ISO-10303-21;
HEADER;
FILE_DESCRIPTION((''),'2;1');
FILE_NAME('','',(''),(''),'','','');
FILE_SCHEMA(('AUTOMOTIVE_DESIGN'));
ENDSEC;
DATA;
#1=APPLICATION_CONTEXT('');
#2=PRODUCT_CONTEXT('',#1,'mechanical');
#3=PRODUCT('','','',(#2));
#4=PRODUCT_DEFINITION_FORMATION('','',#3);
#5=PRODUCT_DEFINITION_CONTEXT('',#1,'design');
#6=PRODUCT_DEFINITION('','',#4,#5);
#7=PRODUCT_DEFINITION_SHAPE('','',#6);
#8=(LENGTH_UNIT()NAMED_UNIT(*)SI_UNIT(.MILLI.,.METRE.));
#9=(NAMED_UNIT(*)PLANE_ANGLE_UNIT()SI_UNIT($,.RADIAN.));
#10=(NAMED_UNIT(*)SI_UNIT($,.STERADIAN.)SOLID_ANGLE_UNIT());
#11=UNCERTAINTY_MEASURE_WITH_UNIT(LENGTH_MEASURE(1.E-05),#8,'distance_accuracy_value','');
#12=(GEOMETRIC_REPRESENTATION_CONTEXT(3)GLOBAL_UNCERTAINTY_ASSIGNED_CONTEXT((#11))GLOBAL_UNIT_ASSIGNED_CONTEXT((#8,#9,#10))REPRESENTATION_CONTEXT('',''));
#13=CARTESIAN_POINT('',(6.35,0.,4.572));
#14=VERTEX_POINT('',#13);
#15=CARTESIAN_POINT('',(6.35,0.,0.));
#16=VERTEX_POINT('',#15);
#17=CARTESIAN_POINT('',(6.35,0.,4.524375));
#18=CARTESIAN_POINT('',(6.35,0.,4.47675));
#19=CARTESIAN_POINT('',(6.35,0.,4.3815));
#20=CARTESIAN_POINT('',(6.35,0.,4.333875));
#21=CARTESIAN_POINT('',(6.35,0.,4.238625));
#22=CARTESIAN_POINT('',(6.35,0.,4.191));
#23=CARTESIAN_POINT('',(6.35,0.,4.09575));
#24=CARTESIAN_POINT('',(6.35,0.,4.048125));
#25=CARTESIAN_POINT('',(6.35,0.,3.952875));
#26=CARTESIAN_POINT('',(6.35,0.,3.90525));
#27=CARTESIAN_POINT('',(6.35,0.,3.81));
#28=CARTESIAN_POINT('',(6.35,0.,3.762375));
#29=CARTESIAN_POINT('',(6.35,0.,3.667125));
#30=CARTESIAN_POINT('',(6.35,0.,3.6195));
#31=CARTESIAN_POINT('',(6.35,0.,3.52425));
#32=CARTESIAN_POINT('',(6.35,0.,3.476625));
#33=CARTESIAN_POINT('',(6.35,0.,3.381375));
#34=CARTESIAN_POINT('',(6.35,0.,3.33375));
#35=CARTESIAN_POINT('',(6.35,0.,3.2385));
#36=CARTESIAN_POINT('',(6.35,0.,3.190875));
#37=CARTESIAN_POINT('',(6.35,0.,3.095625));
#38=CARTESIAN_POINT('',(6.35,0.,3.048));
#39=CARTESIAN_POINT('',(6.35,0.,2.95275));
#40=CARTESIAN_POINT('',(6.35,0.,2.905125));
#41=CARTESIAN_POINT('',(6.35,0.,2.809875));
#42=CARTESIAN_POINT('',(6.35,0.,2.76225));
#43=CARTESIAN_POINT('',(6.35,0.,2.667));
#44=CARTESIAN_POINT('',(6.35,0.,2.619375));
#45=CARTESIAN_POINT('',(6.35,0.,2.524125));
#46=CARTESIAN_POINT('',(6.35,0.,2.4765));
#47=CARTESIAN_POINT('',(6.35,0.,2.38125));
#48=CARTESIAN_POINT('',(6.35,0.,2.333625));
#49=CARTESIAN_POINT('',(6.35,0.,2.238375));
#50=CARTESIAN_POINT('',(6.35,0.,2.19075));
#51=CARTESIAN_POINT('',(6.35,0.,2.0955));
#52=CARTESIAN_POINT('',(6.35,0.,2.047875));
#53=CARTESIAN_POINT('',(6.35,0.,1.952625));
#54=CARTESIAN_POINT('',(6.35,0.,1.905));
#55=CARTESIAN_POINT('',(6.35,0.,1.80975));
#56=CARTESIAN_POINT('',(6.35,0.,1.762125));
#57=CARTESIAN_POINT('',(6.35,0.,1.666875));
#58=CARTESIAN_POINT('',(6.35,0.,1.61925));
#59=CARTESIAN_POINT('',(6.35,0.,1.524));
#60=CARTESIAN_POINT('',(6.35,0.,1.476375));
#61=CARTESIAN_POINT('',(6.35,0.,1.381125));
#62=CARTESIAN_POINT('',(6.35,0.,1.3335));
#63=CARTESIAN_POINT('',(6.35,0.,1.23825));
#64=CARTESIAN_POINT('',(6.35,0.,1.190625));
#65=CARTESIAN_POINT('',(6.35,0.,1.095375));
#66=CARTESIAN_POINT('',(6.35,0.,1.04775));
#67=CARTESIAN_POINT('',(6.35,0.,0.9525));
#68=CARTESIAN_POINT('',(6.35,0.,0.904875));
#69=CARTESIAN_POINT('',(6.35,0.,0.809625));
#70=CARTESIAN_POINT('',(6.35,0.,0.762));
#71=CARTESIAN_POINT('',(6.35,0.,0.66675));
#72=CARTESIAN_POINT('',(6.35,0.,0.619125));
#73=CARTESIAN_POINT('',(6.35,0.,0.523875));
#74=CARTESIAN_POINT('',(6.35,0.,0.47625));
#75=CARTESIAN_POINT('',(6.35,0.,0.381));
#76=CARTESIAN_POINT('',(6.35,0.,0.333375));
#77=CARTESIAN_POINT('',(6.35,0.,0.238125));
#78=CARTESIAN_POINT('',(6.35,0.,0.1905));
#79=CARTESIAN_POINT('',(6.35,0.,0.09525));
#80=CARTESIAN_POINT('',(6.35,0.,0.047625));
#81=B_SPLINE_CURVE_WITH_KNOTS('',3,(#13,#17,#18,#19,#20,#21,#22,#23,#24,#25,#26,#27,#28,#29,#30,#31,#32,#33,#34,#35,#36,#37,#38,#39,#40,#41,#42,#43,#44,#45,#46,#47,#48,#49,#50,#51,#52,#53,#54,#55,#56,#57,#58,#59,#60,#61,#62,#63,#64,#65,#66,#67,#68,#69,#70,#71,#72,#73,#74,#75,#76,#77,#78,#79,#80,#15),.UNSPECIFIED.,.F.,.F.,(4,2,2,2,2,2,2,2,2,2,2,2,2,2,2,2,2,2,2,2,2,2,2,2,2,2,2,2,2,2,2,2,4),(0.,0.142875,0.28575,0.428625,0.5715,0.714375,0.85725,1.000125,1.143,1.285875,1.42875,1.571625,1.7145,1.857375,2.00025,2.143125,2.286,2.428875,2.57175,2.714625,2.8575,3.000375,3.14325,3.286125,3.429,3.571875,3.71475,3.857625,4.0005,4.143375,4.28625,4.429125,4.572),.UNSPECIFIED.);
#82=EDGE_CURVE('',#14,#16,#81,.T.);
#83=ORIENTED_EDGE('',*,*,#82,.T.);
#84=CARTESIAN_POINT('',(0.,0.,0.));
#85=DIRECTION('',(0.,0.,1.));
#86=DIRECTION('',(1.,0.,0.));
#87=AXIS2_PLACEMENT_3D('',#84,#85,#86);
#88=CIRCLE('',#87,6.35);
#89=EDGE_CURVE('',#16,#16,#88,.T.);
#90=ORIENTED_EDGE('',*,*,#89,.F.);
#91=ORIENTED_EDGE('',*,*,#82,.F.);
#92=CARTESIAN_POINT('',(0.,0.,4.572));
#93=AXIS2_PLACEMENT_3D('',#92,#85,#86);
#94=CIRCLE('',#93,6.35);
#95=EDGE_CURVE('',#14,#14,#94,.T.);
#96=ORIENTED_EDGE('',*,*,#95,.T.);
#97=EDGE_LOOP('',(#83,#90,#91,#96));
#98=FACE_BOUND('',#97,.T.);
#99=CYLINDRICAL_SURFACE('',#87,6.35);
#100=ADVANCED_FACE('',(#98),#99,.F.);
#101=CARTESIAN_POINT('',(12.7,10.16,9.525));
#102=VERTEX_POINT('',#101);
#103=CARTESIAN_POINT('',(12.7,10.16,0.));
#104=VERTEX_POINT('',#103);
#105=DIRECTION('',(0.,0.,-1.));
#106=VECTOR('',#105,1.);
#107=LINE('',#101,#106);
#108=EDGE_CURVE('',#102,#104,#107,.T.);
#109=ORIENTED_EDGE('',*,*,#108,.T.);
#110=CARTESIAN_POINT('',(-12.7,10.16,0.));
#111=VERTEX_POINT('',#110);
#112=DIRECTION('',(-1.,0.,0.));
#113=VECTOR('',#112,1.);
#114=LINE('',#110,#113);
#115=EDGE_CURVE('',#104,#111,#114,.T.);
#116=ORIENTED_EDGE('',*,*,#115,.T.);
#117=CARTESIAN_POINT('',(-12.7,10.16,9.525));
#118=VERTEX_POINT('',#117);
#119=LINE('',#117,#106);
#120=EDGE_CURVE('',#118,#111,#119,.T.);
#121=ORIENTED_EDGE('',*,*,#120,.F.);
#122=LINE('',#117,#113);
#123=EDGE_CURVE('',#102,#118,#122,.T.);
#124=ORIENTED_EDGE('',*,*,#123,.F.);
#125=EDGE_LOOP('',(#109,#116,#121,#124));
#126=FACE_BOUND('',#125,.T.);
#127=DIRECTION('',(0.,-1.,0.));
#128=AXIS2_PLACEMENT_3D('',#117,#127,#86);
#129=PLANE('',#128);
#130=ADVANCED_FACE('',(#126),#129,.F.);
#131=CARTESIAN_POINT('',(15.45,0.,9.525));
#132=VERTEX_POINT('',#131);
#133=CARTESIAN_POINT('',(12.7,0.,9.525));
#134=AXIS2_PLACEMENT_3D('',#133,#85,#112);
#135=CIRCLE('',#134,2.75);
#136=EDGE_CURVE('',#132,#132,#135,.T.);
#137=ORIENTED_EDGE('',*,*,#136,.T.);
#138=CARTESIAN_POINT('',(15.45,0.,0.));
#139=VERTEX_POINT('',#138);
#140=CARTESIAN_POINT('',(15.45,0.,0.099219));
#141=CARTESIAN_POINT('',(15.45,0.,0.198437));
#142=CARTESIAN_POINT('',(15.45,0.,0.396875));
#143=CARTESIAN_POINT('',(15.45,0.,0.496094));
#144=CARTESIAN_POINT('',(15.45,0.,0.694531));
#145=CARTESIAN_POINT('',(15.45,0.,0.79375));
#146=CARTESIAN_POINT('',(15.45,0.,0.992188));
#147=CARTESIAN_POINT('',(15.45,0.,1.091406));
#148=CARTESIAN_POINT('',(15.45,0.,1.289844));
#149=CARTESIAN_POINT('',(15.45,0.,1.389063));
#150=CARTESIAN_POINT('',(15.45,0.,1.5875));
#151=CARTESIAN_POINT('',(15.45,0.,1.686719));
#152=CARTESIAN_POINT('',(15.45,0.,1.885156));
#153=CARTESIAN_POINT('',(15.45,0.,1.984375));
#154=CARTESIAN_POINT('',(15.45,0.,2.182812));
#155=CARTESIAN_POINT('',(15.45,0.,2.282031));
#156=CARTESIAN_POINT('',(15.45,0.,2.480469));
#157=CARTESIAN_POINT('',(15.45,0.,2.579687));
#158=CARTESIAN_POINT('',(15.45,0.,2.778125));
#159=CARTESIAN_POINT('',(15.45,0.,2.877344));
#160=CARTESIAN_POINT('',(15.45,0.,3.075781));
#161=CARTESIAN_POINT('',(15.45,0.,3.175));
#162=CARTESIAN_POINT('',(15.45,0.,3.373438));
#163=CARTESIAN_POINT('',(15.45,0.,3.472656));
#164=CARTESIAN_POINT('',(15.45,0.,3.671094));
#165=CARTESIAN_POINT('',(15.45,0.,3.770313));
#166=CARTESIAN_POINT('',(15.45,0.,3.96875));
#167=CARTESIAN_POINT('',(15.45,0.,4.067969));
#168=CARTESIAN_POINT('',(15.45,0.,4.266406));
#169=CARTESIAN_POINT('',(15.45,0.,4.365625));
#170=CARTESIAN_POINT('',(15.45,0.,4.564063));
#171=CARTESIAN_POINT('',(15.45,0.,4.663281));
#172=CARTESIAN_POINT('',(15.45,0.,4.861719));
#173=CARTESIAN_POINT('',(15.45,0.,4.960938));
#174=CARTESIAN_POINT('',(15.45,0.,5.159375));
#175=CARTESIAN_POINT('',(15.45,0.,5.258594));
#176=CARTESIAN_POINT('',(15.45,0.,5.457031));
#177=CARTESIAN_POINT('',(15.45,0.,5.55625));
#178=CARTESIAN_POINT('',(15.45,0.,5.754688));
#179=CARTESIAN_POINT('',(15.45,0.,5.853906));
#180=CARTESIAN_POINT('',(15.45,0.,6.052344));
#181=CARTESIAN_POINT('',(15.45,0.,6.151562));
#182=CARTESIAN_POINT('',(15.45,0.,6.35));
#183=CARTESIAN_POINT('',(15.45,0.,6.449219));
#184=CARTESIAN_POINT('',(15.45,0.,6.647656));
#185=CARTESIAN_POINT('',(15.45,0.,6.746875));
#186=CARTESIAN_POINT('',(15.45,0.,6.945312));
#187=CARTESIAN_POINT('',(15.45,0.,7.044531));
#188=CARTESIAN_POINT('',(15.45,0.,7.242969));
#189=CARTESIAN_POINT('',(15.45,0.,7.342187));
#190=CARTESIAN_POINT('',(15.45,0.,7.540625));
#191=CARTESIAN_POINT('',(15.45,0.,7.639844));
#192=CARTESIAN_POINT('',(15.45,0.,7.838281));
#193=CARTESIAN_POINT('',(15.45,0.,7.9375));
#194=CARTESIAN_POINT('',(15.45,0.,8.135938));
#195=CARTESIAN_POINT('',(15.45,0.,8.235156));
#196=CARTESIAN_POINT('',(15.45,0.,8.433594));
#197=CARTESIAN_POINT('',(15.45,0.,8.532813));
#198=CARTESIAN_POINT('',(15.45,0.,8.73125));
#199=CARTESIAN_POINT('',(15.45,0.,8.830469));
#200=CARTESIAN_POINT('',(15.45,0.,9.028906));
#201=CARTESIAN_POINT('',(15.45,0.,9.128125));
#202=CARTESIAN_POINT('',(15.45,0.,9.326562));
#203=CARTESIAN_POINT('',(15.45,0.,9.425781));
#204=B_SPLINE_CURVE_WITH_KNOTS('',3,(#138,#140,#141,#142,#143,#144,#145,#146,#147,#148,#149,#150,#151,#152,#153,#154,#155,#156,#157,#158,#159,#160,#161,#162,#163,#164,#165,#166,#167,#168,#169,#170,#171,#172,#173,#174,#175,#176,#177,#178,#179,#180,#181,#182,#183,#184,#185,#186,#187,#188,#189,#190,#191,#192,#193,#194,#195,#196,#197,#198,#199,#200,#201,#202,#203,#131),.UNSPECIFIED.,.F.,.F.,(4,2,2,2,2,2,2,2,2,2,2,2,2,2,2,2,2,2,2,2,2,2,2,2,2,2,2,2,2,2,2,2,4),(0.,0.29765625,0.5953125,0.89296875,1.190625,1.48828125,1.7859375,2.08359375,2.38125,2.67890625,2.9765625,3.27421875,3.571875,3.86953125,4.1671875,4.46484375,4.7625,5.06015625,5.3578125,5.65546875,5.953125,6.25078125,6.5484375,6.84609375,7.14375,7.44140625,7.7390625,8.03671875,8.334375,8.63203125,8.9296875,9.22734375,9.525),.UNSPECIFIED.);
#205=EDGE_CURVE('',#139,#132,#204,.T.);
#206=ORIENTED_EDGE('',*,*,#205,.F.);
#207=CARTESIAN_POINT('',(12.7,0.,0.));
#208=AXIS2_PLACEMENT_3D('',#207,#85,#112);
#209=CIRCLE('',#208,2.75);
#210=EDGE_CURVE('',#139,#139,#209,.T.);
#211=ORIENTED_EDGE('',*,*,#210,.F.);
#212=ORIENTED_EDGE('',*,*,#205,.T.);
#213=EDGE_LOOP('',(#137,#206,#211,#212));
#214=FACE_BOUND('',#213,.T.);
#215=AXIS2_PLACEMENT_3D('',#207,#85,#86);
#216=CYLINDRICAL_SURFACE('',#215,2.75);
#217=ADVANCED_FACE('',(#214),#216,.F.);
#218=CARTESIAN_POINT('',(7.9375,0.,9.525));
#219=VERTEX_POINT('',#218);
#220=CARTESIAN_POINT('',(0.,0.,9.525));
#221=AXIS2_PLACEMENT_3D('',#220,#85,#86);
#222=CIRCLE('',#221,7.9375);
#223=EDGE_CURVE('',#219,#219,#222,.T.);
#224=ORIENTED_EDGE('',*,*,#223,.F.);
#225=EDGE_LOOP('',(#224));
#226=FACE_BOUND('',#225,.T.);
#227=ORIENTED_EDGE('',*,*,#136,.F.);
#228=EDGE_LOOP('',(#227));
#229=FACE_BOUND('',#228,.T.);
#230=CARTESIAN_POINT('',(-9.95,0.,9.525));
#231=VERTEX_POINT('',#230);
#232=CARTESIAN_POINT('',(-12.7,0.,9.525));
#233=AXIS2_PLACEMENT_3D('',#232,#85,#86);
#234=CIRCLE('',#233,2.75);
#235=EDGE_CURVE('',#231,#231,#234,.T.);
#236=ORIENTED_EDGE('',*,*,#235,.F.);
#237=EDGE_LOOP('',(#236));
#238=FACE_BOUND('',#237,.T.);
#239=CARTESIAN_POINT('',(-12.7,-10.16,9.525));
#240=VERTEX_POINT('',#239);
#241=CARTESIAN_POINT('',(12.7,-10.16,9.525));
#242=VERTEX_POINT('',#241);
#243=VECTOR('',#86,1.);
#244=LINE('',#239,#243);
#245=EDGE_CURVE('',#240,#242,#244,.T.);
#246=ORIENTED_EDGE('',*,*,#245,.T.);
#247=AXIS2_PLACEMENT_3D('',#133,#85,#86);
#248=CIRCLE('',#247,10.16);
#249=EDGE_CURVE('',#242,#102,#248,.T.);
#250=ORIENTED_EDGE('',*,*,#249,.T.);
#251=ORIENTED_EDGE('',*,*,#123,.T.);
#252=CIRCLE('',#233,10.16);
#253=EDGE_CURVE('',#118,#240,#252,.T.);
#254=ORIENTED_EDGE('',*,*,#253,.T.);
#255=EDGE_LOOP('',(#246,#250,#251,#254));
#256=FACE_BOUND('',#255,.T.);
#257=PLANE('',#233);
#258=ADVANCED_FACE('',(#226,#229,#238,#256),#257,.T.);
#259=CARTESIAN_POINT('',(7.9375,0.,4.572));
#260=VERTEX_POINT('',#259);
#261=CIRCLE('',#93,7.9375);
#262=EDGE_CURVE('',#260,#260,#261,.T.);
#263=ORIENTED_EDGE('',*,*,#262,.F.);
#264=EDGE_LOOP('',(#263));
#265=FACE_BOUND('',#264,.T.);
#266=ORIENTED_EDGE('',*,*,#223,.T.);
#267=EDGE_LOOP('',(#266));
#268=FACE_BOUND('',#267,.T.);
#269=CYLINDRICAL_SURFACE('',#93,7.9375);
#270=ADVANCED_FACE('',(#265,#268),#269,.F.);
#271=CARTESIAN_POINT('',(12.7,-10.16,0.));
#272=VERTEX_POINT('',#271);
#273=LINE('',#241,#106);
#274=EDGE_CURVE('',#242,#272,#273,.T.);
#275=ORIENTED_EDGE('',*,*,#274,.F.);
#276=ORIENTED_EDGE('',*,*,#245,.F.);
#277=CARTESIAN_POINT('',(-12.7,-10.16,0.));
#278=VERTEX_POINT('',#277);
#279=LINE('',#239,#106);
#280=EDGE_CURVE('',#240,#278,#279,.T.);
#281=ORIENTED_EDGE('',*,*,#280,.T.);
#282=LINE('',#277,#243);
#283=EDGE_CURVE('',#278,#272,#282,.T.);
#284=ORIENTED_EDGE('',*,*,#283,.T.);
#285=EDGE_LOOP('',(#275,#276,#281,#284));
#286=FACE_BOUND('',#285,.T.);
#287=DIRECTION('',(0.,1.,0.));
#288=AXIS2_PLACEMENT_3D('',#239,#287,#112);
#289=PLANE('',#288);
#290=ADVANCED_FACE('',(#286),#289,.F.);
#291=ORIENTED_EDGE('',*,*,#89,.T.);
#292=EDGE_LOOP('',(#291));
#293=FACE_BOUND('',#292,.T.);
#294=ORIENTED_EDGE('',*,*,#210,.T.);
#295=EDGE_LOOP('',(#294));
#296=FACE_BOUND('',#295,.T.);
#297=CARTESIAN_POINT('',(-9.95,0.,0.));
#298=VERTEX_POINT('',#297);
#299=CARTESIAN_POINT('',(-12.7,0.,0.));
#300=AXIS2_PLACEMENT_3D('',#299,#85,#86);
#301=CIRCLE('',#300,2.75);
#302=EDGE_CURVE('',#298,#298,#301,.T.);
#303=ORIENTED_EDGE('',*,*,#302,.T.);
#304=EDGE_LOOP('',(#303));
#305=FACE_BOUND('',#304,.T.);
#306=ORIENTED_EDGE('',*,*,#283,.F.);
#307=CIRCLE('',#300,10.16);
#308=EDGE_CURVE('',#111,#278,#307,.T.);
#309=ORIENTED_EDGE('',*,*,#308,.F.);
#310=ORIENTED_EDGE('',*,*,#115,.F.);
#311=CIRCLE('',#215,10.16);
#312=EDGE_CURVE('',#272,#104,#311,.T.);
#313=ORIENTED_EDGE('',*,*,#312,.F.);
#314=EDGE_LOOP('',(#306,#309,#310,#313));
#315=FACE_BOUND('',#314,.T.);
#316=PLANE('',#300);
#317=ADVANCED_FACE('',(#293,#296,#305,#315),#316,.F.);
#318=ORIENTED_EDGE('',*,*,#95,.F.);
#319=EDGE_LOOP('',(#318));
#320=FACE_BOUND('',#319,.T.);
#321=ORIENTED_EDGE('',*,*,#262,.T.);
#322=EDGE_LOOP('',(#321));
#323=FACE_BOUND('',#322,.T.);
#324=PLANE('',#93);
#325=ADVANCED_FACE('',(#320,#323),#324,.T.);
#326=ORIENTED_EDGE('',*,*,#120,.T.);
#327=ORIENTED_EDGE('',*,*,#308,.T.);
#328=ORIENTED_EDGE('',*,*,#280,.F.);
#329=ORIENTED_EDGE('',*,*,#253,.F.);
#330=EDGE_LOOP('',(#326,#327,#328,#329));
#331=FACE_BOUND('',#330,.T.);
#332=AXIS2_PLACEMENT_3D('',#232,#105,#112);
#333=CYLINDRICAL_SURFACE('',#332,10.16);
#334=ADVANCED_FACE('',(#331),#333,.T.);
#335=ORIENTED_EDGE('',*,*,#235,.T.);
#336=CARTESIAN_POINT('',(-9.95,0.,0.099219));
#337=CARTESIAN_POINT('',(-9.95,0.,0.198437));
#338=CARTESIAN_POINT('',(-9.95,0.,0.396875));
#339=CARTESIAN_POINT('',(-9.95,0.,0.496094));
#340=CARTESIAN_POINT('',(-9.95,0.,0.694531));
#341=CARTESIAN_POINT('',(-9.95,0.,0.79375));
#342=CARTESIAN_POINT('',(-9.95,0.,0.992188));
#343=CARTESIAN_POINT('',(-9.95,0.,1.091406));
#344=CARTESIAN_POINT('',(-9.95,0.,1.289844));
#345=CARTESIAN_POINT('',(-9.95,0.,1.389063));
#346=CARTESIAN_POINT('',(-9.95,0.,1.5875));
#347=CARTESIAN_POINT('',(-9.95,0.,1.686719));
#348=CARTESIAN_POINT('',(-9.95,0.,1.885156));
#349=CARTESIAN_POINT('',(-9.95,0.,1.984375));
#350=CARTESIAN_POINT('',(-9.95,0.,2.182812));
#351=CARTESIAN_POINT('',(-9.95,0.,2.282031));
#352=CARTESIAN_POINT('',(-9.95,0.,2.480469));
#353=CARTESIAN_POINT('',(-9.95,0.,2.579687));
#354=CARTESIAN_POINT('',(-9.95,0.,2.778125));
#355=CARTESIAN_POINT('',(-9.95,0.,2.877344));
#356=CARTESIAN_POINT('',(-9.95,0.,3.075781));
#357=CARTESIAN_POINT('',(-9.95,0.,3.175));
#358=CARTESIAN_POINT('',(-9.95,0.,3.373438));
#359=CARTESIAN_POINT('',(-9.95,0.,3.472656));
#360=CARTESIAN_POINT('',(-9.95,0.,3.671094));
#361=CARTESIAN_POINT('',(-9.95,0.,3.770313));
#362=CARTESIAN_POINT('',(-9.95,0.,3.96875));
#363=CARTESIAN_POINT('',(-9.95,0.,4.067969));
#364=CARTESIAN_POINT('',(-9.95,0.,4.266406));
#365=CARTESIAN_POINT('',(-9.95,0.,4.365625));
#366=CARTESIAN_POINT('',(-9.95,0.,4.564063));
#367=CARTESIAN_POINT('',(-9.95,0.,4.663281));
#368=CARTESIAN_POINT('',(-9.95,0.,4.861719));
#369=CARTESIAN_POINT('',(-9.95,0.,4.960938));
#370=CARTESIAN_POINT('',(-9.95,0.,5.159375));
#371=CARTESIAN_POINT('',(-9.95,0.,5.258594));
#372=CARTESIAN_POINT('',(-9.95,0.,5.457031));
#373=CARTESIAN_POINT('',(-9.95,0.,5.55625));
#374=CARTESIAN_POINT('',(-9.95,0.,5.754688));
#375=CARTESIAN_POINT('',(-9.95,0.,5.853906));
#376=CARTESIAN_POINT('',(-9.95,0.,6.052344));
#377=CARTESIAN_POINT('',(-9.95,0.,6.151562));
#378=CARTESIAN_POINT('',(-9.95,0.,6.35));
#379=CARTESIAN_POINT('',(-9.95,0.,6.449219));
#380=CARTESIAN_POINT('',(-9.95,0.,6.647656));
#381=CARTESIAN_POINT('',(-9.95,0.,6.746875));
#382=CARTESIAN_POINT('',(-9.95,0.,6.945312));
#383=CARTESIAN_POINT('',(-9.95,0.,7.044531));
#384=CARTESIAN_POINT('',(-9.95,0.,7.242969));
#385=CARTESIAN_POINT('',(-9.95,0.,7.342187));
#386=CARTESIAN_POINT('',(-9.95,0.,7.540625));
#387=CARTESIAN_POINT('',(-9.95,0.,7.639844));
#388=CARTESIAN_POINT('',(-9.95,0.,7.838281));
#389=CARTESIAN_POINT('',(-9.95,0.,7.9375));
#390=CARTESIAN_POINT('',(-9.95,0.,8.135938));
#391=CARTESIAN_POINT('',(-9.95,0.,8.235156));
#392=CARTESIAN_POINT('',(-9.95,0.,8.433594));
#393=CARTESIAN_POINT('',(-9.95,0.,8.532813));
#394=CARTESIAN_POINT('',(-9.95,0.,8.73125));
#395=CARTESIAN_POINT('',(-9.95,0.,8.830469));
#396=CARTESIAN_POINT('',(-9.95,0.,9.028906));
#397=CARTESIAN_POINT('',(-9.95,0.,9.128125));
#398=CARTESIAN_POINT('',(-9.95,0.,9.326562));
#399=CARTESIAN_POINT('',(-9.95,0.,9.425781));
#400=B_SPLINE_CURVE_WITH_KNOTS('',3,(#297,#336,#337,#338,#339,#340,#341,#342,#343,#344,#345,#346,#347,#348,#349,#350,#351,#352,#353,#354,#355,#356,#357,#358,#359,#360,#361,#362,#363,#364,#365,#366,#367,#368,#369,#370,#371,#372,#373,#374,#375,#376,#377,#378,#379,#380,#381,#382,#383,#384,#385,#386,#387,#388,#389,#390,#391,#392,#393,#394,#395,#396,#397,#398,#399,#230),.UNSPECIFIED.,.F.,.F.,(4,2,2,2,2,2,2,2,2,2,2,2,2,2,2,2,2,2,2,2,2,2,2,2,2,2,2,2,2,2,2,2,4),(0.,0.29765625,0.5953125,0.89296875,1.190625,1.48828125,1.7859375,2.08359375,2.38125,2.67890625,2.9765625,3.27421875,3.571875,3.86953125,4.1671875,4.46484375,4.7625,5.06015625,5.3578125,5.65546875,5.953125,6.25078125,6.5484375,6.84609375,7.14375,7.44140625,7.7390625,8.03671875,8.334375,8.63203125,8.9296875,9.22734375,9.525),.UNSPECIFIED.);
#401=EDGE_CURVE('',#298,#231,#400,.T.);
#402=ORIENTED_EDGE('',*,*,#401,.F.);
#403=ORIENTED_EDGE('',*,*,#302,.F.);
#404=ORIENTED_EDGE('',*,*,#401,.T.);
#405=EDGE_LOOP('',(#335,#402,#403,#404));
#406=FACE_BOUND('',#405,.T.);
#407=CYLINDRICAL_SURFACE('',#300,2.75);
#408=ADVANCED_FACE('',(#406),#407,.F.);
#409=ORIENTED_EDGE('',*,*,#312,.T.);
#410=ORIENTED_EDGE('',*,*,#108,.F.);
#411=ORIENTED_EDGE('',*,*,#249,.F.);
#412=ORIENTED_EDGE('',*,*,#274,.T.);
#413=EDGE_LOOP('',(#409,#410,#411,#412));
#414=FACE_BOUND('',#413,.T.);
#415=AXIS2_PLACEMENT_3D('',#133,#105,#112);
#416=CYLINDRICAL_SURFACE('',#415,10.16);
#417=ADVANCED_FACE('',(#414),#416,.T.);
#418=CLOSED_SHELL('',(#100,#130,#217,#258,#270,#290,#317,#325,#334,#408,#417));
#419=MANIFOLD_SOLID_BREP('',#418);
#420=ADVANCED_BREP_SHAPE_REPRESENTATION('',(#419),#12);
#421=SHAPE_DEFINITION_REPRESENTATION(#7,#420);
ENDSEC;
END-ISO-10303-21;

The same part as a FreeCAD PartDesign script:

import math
import FreeCAD as App
import Part
import Sketcher

V = App.Vector
Q = App.Units.Quantity

doc = App.newDocument("Part")
body = doc.addObject("PartDesign::Body", "Body")

sketch1 = body.newObject("Sketcher::SketchObject", "Sketch")
sketch1.AttachmentSupport = (doc.getObject("XY_Plane"), [""])
sketch1.MapMode = "FlatFace"
sketch1.addGeometry(Part.LineSegment(V(13, 10, 0), V(-13, 10, 0)), False)
sketch1.addGeometry(Part.ArcOfCircle(Part.Circle(V(-13, 0, 0), V(0, 0, 1), 10), math.radians(90), math.radians(270)), False)
sketch1.addGeometry(Part.LineSegment(V(-13, -10, 0), V(13, -10, 0)), False)
sketch1.addGeometry(Part.ArcOfCircle(Part.Circle(V(13, 0, 0), V(0, 0, 1), 10), math.radians(-90), math.radians(90)), False)
sketch1.addConstraint(Sketcher.Constraint("Tangent", 0, 2, 1, 1))
sketch1.addConstraint(Sketcher.Constraint("Tangent", 1, 2, 2, 1))
sketch1.addConstraint(Sketcher.Constraint("Tangent", 2, 2, 3, 1))
sketch1.addConstraint(Sketcher.Constraint("Tangent", 3, 2, 0, 1))
sketch1.addConstraint(Sketcher.Constraint("Horizontal", 0))
sketch1.addConstraint(Sketcher.Constraint("Horizontal", 2))
sketch1.addConstraint(Sketcher.Constraint("Symmetric", 1, 3, 3, 3, -1, 1))
sketch1.addConstraint(Sketcher.Constraint("Radius", 1, Q("0.4 in")))
sketch1.addConstraint(Sketcher.Constraint("DistanceX", 0, 2, 0, 1, Q("1 in")))
pad1 = body.newObject("PartDesign::Pad", "Pad")
pad1.Profile = sketch1
pad1.Length = Q("0.375 in")

sketch2 = body.newObject("Sketcher::SketchObject", "Sketch001")
sketch2.AttachmentSupport = (doc.getObject("XY_Plane"), [""])
sketch2.MapMode = "FlatFace"
sketch2.AttachmentOffset = App.Placement(V(0, 0, 0.375 * 25.4), App.Rotation())
sketch2.addGeometry(Part.Circle(V(0, 0, 0), V(0, 0, 1), 8), False)
sketch2.addConstraint(Sketcher.Constraint("Coincident", 0, 3, -1, 1))
sketch2.addConstraint(Sketcher.Constraint("Diameter", 0, Q("0.625 in")))
pocket1 = body.newObject("PartDesign::Pocket", "Pocket")
pocket1.Profile = sketch2
pocket1.Length = Q("0.195 in")

sketch3 = body.newObject("Sketcher::SketchObject", "Sketch002")
sketch3.AttachmentSupport = (doc.getObject("XY_Plane"), [""])
sketch3.MapMode = "FlatFace"
sketch3.AttachmentOffset = App.Placement(V(0, 0, 0.375 * 25.4), App.Rotation())
sketch3.addGeometry(Part.Circle(V(0, 0, 0), V(0, 0, 1), 6.3), False)
sketch3.addGeometry(Part.Circle(V(-12.7, 0, 0), V(0, 0, 1), 2.8), False)
sketch3.addGeometry(Part.Circle(V(12.7, 0, 0), V(0, 0, 1), 2.8), False)
sketch3.addConstraint(Sketcher.Constraint("Coincident", 0, 3, -1, 1))
sketch3.addConstraint(Sketcher.Constraint("Equal", 1, 2))
sketch3.addConstraint(Sketcher.Constraint("Symmetric", 1, 3, 2, 3, -1, 1))
sketch3.addConstraint(Sketcher.Constraint("PointOnObject", 1, 3, -1))
sketch3.addConstraint(Sketcher.Constraint("Diameter", 0, Q("0.5 in")))
sketch3.addConstraint(Sketcher.Constraint("DistanceX", 1, 3, 2, 3, Q("1 in")))
sketch3.addConstraint(Sketcher.Constraint("Diameter", 1, 5.5))
pocket2 = body.newObject("PartDesign::Pocket", "Pocket001")
pocket2.Profile = sketch3
pocket2.Type = "ThroughAll"

doc.recompute()
